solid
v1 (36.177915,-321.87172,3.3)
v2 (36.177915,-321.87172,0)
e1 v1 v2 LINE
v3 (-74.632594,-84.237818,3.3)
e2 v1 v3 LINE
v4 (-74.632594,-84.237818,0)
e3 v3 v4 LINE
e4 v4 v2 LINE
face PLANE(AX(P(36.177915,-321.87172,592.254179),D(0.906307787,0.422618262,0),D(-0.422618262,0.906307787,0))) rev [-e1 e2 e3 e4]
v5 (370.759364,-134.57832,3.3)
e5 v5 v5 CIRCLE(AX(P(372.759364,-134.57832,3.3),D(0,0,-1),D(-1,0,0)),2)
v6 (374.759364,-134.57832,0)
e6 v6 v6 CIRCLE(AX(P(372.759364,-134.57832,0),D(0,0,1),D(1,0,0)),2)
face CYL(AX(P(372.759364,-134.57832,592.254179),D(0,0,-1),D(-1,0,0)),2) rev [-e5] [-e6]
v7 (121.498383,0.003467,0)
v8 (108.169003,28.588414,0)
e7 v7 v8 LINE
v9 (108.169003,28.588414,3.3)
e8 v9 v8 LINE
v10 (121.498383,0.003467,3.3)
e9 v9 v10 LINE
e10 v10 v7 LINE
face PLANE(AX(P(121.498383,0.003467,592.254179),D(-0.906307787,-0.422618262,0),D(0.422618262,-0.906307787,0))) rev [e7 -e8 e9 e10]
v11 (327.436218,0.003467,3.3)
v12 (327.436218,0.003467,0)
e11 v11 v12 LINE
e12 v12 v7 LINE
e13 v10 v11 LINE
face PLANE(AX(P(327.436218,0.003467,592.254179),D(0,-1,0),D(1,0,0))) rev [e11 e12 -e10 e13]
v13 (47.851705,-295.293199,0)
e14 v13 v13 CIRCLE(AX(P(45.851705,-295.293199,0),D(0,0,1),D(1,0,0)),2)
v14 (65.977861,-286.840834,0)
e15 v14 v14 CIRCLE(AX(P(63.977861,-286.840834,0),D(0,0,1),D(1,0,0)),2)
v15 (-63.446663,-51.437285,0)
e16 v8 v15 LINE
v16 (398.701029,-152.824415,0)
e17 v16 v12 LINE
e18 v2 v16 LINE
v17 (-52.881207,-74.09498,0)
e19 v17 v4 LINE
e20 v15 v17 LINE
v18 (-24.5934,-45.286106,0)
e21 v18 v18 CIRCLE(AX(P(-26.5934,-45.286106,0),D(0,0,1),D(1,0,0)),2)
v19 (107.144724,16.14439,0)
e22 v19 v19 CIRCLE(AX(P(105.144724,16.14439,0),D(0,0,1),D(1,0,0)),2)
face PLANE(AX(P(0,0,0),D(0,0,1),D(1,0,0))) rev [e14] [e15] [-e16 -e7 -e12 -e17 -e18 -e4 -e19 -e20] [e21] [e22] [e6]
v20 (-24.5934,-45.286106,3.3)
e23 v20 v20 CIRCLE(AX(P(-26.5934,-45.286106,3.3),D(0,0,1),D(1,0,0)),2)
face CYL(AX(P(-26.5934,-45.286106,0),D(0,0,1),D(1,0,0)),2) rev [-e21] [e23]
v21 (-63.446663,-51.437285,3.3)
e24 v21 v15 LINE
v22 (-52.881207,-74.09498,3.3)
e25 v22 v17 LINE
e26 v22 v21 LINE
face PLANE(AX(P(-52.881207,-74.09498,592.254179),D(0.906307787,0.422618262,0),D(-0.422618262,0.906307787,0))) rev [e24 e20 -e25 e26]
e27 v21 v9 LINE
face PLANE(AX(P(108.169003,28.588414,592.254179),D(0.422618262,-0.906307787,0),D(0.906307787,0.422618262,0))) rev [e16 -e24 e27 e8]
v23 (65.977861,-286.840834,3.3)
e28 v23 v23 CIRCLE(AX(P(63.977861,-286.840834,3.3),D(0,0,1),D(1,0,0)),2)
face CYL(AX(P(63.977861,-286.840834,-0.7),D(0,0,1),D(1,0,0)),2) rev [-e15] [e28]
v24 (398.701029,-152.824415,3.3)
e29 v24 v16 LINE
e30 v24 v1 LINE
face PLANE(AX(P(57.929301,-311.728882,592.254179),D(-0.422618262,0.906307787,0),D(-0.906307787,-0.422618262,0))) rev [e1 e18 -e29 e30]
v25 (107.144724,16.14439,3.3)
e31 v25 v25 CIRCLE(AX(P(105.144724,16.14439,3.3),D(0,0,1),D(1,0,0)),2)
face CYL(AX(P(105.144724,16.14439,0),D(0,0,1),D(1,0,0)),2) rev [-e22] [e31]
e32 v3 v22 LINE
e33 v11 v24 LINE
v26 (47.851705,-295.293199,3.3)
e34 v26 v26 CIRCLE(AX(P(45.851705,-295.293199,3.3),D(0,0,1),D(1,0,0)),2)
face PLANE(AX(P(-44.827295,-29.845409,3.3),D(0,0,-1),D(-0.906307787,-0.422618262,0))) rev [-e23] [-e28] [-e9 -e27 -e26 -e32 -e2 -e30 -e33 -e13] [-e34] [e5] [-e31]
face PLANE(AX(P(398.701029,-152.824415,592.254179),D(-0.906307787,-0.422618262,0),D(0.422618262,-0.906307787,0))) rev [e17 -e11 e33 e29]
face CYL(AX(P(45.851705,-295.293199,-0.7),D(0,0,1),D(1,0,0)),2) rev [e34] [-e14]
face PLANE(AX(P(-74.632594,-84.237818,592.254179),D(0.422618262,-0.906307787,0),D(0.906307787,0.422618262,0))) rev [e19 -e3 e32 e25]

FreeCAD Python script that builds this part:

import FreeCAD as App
import Part
import Sketcher

V = App.Vector
Q = App.Units.Quantity

doc = App.newDocument("Part")
body = doc.addObject("PartDesign::Body", "Body")

# Sketch on XY plane
sketch1 = body.newObject("Sketcher::SketchObject", "Sketch")
sketch1.AttachmentSupport = (doc.getObject("XY_Plane"), [""])
sketch1.MapMode = "FlatFace"
sketch1.addGeometry([
    Part.LineSegment(V(327.4, 0, 0), V(121.5, 0, 0)),  # 0
    Part.LineSegment(V(121.5, 0, 0), V(108.2, 28.6, 0)),  # 1
    Part.LineSegment(V(108.2, 28.6, 0), V(-63.4, -51.4, 0)),  # 2
    Part.LineSegment(V(-63.4, -51.4, 0), V(-52.9, -74.1, 0)),  # 3
    Part.LineSegment(V(-52.9, -74.1, 0), V(-74.6, -84.2, 0)),  # 4
    Part.LineSegment(V(-74.6, -84.2, 0), V(36.2, -321.9, 0)),  # 5
    Part.LineSegment(V(36.2, -321.9, 0), V(57.9, -311.7, 0)),  # 6
    Part.LineSegment(V(57.9, -311.7, 0), V(398.7, -152.8, 0)),  # 7
    Part.LineSegment(V(398.7, -152.8, 0), V(327.4, 0, 0)),  # 8
    Part.Circle(V(372.8, -134.6, 0), V(0, 0, 1), 2),  # 9
], False)
sketch1.addConstraint([
    Sketcher.Constraint("Coincident", 0, 2, 1, 1),
    Sketcher.Constraint("Coincident", 1, 2, 2, 1),
    Sketcher.Constraint("Coincident", 2, 2, 3, 1),
    Sketcher.Constraint("Coincident", 3, 2, 4, 1),
    Sketcher.Constraint("Coincident", 4, 2, 5, 1),
    Sketcher.Constraint("Coincident", 5, 2, 6, 1),
    Sketcher.Constraint("Coincident", 6, 2, 7, 1),
    Sketcher.Constraint("Coincident", 7, 2, 8, 1),
    Sketcher.Constraint("Coincident", 8, 2, 0, 1),
    Sketcher.Constraint("Horizontal", 0),
    Sketcher.Constraint("Perpendicular", 1, 2),
    Sketcher.Constraint("Perpendicular", 2, 3),
    Sketcher.Constraint("Perpendicular", 3, 4),
    Sketcher.Constraint("Perpendicular", 4, 5),
    Sketcher.Constraint("Perpendicular", 5, 6),
    Sketcher.Constraint("Parallel", 6, 7),
    Sketcher.Constraint("Perpendicular", 7, 8),
    Sketcher.Constraint("Equal", 4, 6),
    Sketcher.Constraint("Diameter", 9, 4.0),
    Sketcher.Constraint("Angle", 1, Q("115 deg")),
    Sketcher.Constraint("Distance", 3, 25.0),
    Sketcher.Constraint("Distance", 4, 24.0),
    Sketcher.Constraint("Distance", 7, 376.0),
    Sketcher.Constraint("Distance", 5, 262.2),
    Sketcher.Constraint("Distance", 1, 31.54),
    Sketcher.Constraint("DistanceX", -1, 1, 6, 2, 57.929301),
    Sketcher.Constraint("DistanceY", 2, 2, 1, 2, 80.0257),
    Sketcher.Constraint("DistanceY", 9, 3, 4, 2, 50.340501),
    Sketcher.Constraint("DistanceY", 9, 3, -1, 1, 134.57832),
    Sketcher.Constraint("DistanceX", 0, 2, 9, 3, 251.260981),
])
pad1 = body.newObject("PartDesign::Pad", "Pad")
pad1.Profile = sketch1
pad1.Length = 3.3

# Sketch on XY plane
sketch2 = body.newObject("Sketcher::SketchObject", "Sketch001")
sketch2.AttachmentSupport = (doc.getObject("XY_Plane"), [""])
sketch2.MapMode = "FlatFace"
sketch2.AttachmentOffset = App.Placement(V(0, 0, 3.3), App.Rotation())
sketch2.addGeometry([
    Part.Circle(V(105.1, 16.1, 0), V(0, 0, 1), 2),
    Part.Circle(V(-26.6, -45.3, 0), V(0, 0, 1), 2),
], False)
sketch2.addConstraint([
    Sketcher.Constraint("Equal", 0, 1),
    Sketcher.Constraint("Diameter", 0, 4.0),
    Sketcher.Constraint("DistanceX", 1, 3, -1, 1, 26.5934),
    Sketcher.Constraint("DistanceY", -1, 1, 0, 3, 16.14439),
    Sketcher.Constraint("DistanceX", -1, 1, 0, 3, 105.144724),
    Sketcher.Constraint("DistanceY", 1, 3, -1, 1, 45.286106),
])
pocket1 = body.newObject("PartDesign::Pocket", "Pocket")
pocket1.Profile = sketch2
pocket1.Type = "ThroughAll"

# Sketch on XY plane
sketch3 = body.newObject("Sketcher::SketchObject", "Sketch002")
sketch3.AttachmentSupport = (doc.getObject("XY_Plane"), [""])
sketch3.MapMode = "FlatFace"
sketch3.AttachmentOffset = App.Placement(V(0, 0, 3.3), App.Rotation())
sketch3.addGeometry([
    Part.Circle(V(45.9, -295.3, 0), V(0, 0, 1), 2),
    Part.Circle(V(64, -286.8, 0), V(0, 0, 1), 2),
], False)
sketch3.addConstraint([
    Sketcher.Constraint("Equal", 0, 1),
    Sketcher.Constraint("Diameter", 0, 4.0),
    Sketcher.Constraint("DistanceY", 0, 3, -1, 1, 295.293199),
    Sketcher.Constraint("DistanceX", -1, 1, 1, 3, 63.977861),
    Sketcher.Constraint("DistanceX", -1, 1, 0, 3, 45.851705),
    Sketcher.Constraint("DistanceY", 1, 3, -1, 1, 286.840834),
])
pocket2 = body.newObject("PartDesign::Pocket", "Pocket001")
pocket2.Profile = sketch3
pocket2.Length = 4

doc.recompute()
